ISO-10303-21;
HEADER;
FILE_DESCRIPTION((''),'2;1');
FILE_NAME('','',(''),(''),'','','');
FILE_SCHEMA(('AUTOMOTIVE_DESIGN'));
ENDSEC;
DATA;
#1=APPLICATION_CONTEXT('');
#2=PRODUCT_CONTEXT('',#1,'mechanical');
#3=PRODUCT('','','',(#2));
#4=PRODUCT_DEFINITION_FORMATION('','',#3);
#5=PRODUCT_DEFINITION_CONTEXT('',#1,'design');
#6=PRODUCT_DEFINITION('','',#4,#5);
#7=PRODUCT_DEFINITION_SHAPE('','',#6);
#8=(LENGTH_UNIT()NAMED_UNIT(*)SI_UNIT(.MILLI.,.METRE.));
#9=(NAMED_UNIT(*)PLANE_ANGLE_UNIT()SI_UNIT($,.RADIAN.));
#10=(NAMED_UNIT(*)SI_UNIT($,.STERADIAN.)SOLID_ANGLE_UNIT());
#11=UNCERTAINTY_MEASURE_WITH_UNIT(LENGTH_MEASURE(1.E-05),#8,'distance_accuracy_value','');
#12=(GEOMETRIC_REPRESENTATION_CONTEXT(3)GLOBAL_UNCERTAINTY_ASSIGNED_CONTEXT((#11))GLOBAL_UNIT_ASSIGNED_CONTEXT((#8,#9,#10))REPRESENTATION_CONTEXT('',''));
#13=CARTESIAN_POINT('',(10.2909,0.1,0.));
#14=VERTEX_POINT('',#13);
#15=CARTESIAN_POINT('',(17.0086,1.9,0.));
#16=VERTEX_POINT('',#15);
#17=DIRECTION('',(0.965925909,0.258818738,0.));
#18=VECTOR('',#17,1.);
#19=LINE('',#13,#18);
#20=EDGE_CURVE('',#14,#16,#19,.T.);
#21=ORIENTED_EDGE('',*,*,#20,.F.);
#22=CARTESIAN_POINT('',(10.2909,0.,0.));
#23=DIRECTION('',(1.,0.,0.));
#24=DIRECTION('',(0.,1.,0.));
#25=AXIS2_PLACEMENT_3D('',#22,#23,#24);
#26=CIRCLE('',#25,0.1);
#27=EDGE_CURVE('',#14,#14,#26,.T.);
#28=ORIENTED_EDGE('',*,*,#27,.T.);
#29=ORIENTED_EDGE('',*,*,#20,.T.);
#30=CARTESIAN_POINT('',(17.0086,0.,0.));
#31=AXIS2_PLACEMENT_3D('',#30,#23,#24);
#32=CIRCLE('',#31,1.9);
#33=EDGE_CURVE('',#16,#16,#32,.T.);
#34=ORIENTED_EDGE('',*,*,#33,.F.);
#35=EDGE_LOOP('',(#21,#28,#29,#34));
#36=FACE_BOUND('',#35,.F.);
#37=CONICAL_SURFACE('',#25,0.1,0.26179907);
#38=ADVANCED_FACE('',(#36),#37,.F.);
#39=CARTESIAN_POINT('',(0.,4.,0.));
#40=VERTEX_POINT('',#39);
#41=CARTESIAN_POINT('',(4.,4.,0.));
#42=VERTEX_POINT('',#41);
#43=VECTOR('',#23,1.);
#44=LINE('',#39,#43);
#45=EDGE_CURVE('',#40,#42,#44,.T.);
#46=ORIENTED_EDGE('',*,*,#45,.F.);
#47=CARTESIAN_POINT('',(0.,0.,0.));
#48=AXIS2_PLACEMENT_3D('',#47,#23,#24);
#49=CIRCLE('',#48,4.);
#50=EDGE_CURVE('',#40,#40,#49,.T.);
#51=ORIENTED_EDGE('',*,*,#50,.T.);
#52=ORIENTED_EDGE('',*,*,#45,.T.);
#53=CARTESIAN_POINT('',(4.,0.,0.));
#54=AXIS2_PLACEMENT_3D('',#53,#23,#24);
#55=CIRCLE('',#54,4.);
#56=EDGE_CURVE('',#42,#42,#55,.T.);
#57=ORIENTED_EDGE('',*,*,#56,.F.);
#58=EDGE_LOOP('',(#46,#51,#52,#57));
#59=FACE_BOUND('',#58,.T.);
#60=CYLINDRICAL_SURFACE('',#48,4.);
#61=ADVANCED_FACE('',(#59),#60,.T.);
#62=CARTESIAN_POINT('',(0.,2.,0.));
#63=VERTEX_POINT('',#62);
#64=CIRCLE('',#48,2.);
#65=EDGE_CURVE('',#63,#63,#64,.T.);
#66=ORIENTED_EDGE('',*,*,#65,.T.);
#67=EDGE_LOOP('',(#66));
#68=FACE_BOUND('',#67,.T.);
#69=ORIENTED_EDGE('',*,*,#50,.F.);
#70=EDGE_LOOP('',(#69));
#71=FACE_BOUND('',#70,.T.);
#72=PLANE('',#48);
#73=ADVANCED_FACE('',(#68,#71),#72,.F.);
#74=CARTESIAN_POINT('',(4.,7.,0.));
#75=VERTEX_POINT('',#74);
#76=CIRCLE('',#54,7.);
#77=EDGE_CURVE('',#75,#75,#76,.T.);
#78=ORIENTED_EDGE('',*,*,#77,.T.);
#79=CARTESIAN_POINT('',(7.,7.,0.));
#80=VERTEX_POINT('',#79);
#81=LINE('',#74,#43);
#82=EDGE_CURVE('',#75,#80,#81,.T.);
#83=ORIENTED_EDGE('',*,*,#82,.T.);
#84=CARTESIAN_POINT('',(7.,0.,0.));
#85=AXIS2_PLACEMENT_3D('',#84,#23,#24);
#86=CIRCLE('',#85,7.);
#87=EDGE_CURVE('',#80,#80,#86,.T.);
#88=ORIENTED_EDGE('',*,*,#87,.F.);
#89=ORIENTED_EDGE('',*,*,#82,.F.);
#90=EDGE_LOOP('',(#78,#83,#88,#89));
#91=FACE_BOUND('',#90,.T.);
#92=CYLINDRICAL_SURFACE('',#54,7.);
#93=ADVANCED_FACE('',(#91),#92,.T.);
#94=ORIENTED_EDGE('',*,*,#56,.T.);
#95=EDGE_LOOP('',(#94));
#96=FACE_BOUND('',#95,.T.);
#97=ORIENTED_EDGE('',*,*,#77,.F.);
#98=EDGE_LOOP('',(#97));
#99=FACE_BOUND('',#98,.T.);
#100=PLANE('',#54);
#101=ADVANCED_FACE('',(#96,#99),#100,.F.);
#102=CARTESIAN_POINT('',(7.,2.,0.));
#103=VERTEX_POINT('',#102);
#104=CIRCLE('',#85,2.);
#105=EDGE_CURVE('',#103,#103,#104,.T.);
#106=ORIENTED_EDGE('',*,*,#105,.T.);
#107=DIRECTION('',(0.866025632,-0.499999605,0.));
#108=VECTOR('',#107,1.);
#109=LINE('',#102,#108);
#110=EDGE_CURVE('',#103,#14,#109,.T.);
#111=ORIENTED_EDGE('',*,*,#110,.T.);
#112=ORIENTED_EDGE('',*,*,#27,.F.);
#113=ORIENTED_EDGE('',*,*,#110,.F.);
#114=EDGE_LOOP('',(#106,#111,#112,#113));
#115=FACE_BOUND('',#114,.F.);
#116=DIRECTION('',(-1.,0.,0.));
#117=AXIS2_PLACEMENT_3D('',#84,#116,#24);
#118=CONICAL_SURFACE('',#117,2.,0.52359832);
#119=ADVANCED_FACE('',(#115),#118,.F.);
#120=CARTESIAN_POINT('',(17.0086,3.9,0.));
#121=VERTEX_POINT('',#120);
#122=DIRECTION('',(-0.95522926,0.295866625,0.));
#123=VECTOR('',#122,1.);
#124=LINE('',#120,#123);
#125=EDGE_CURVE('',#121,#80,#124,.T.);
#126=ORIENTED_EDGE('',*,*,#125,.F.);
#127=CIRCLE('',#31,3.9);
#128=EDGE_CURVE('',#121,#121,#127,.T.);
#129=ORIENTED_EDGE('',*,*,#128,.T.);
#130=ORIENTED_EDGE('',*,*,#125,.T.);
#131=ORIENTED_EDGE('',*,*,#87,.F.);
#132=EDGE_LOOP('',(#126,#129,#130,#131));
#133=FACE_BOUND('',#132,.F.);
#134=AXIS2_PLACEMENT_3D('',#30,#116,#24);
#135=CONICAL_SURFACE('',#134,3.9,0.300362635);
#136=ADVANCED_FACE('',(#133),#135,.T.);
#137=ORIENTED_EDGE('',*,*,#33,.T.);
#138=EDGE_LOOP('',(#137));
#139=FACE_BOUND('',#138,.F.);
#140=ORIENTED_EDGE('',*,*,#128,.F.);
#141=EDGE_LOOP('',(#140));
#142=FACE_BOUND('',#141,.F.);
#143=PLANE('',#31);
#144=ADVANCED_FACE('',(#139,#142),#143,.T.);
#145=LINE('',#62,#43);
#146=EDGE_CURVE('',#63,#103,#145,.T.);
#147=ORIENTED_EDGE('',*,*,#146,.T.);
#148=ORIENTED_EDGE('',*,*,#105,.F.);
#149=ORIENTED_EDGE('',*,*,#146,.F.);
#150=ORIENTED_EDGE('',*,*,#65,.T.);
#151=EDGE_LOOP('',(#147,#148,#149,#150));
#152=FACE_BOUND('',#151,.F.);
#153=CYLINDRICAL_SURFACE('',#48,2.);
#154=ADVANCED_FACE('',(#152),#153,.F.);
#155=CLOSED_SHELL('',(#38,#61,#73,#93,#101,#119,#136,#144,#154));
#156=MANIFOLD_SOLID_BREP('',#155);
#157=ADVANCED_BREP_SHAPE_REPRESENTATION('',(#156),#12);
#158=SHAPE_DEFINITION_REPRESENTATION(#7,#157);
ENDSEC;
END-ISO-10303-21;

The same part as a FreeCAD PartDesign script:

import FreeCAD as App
import Part
import Sketcher

V = App.Vector
Q = App.Units.Quantity

doc = App.newDocument("Part")
body = doc.addObject("PartDesign::Body", "Body")

# Sketch on XY plane
sketch1 = doc.addObject("Sketcher::SketchObject", "Sketch")
body.addObject(sketch1)
sketch1.AttachmentSupport = (doc.XY_Plane, [""])
sketch1.MapMode = "FlatFace"
sketch1.addGeometry([
    Part.LineSegment(V(10.3, 0.1, 0), V(17, 1.9, 0)),  # 0
    Part.LineSegment(V(17, 1.9, 0), V(17, 3.9, 0)),  # 1
    Part.LineSegment(V(17, 3.9, 0), V(7, 7, 0)),  # 2
    Part.LineSegment(V(7, 7, 0), V(4, 7, 0)),  # 3
    Part.LineSegment(V(4, 7, 0), V(4, 4, 0)),  # 4
    Part.LineSegment(V(4, 4, 0), V(0, 4, 0)),  # 5
    Part.LineSegment(V(0, 4, 0), V(0, 2, 0)),  # 6
    Part.LineSegment(V(0, 2, 0), V(7, 2, 0)),  # 7
    Part.LineSegment(V(7, 2, 0), V(10.3, 0.1, 0)),  # 8
], False)
sketch1.addConstraint([
    Sketcher.Constraint("Coincident", 0, 2, 1, 1),
    Sketcher.Constraint("Coincident", 1, 2, 2, 1),
    Sketcher.Constraint("Coincident", 2, 2, 3, 1),
    Sketcher.Constraint("Coincident", 3, 2, 4, 1),
    Sketcher.Constraint("Coincident", 4, 2, 5, 1),
    Sketcher.Constraint("Coincident", 5, 2, 6, 1),
    Sketcher.Constraint("Coincident", 6, 2, 7, 1),
    Sketcher.Constraint("Coincident", 7, 2, 8, 1),
    Sketcher.Constraint("Coincident", 8, 2, 0, 1),
    Sketcher.Constraint("Vertical", 1),
    Sketcher.Constraint("Horizontal", 3),
    Sketcher.Constraint("Vertical", 4),
    Sketcher.Constraint("Horizontal", 5),
    Sketcher.Constraint("Vertical", 6),
    Sketcher.Constraint("Horizontal", 7),
    Sketcher.Constraint("PointOnObject", 5, 2, -2),
    Sketcher.Constraint("Vertical", 2, 2, 7, 2),
    Sketcher.Constraint("Equal", 3, 4),
    Sketcher.Constraint("Equal", 1, 6),
    Sketcher.Constraint("DistanceX", 3, 2, 3, 1, 3.0),
    Sketcher.Constraint("DistanceX", 5, 2, 5, 1, 4.0),
    Sketcher.Constraint("DistanceY", 1, 1, 1, 2, 2.0),
    Sketcher.Constraint("Angle", 0, Q("15 deg")),
    Sketcher.Constraint("Angle", 8, Q("-30 deg")),
    Sketcher.Constraint("DistanceY", -1, 1, 4, 2, 4.0),
    Sketcher.Constraint("DistanceY", -1, 1, 0, 2, 1.9),
    Sketcher.Constraint("DistanceY", -1, 1, 8, 2, 0.1),
])
revolution = doc.addObject("PartDesign::Revolution", "Revolution")
body.addObject(revolution)
revolution.Profile = sketch1
revolution.ReferenceAxis = (sketch1, ["H_Axis"])
revolution.Angle = 360

doc.recompute()
